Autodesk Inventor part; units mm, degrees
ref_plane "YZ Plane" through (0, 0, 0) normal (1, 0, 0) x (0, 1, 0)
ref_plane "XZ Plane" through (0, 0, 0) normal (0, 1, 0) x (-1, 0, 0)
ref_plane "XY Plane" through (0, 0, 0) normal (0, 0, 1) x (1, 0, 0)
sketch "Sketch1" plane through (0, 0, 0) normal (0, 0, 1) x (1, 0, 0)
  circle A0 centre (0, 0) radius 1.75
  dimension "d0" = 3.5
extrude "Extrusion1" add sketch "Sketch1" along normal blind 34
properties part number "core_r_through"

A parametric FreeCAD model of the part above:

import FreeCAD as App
import Part
import Sketcher

V = App.Vector

doc = App.newDocument("Part")
body = doc.addObject("PartDesign::Body", "Body")

# Sketch on XY plane
sketch1 = doc.addObject("Sketcher::SketchObject", "Sketch")
body.addObject(sketch1)
sketch1.AttachmentSupport = (doc.XY_Plane, [""])
sketch1.MapMode = "FlatFace"
sketch1.addGeometry(Part.Circle(V(0, 0, 0), V(0, 0, 1), 1.8), False)
sketch1.addConstraint([
    Sketcher.Constraint("Coincident", 0, 3, -1, 1),
    Sketcher.Constraint("Diameter", 0, 3.5),
])
pad1 = doc.addObject("PartDesign::Pad", "Pad")
body.addObject(pad1)
pad1.Profile = sketch1
pad1.Length = 34

doc.recompute()
